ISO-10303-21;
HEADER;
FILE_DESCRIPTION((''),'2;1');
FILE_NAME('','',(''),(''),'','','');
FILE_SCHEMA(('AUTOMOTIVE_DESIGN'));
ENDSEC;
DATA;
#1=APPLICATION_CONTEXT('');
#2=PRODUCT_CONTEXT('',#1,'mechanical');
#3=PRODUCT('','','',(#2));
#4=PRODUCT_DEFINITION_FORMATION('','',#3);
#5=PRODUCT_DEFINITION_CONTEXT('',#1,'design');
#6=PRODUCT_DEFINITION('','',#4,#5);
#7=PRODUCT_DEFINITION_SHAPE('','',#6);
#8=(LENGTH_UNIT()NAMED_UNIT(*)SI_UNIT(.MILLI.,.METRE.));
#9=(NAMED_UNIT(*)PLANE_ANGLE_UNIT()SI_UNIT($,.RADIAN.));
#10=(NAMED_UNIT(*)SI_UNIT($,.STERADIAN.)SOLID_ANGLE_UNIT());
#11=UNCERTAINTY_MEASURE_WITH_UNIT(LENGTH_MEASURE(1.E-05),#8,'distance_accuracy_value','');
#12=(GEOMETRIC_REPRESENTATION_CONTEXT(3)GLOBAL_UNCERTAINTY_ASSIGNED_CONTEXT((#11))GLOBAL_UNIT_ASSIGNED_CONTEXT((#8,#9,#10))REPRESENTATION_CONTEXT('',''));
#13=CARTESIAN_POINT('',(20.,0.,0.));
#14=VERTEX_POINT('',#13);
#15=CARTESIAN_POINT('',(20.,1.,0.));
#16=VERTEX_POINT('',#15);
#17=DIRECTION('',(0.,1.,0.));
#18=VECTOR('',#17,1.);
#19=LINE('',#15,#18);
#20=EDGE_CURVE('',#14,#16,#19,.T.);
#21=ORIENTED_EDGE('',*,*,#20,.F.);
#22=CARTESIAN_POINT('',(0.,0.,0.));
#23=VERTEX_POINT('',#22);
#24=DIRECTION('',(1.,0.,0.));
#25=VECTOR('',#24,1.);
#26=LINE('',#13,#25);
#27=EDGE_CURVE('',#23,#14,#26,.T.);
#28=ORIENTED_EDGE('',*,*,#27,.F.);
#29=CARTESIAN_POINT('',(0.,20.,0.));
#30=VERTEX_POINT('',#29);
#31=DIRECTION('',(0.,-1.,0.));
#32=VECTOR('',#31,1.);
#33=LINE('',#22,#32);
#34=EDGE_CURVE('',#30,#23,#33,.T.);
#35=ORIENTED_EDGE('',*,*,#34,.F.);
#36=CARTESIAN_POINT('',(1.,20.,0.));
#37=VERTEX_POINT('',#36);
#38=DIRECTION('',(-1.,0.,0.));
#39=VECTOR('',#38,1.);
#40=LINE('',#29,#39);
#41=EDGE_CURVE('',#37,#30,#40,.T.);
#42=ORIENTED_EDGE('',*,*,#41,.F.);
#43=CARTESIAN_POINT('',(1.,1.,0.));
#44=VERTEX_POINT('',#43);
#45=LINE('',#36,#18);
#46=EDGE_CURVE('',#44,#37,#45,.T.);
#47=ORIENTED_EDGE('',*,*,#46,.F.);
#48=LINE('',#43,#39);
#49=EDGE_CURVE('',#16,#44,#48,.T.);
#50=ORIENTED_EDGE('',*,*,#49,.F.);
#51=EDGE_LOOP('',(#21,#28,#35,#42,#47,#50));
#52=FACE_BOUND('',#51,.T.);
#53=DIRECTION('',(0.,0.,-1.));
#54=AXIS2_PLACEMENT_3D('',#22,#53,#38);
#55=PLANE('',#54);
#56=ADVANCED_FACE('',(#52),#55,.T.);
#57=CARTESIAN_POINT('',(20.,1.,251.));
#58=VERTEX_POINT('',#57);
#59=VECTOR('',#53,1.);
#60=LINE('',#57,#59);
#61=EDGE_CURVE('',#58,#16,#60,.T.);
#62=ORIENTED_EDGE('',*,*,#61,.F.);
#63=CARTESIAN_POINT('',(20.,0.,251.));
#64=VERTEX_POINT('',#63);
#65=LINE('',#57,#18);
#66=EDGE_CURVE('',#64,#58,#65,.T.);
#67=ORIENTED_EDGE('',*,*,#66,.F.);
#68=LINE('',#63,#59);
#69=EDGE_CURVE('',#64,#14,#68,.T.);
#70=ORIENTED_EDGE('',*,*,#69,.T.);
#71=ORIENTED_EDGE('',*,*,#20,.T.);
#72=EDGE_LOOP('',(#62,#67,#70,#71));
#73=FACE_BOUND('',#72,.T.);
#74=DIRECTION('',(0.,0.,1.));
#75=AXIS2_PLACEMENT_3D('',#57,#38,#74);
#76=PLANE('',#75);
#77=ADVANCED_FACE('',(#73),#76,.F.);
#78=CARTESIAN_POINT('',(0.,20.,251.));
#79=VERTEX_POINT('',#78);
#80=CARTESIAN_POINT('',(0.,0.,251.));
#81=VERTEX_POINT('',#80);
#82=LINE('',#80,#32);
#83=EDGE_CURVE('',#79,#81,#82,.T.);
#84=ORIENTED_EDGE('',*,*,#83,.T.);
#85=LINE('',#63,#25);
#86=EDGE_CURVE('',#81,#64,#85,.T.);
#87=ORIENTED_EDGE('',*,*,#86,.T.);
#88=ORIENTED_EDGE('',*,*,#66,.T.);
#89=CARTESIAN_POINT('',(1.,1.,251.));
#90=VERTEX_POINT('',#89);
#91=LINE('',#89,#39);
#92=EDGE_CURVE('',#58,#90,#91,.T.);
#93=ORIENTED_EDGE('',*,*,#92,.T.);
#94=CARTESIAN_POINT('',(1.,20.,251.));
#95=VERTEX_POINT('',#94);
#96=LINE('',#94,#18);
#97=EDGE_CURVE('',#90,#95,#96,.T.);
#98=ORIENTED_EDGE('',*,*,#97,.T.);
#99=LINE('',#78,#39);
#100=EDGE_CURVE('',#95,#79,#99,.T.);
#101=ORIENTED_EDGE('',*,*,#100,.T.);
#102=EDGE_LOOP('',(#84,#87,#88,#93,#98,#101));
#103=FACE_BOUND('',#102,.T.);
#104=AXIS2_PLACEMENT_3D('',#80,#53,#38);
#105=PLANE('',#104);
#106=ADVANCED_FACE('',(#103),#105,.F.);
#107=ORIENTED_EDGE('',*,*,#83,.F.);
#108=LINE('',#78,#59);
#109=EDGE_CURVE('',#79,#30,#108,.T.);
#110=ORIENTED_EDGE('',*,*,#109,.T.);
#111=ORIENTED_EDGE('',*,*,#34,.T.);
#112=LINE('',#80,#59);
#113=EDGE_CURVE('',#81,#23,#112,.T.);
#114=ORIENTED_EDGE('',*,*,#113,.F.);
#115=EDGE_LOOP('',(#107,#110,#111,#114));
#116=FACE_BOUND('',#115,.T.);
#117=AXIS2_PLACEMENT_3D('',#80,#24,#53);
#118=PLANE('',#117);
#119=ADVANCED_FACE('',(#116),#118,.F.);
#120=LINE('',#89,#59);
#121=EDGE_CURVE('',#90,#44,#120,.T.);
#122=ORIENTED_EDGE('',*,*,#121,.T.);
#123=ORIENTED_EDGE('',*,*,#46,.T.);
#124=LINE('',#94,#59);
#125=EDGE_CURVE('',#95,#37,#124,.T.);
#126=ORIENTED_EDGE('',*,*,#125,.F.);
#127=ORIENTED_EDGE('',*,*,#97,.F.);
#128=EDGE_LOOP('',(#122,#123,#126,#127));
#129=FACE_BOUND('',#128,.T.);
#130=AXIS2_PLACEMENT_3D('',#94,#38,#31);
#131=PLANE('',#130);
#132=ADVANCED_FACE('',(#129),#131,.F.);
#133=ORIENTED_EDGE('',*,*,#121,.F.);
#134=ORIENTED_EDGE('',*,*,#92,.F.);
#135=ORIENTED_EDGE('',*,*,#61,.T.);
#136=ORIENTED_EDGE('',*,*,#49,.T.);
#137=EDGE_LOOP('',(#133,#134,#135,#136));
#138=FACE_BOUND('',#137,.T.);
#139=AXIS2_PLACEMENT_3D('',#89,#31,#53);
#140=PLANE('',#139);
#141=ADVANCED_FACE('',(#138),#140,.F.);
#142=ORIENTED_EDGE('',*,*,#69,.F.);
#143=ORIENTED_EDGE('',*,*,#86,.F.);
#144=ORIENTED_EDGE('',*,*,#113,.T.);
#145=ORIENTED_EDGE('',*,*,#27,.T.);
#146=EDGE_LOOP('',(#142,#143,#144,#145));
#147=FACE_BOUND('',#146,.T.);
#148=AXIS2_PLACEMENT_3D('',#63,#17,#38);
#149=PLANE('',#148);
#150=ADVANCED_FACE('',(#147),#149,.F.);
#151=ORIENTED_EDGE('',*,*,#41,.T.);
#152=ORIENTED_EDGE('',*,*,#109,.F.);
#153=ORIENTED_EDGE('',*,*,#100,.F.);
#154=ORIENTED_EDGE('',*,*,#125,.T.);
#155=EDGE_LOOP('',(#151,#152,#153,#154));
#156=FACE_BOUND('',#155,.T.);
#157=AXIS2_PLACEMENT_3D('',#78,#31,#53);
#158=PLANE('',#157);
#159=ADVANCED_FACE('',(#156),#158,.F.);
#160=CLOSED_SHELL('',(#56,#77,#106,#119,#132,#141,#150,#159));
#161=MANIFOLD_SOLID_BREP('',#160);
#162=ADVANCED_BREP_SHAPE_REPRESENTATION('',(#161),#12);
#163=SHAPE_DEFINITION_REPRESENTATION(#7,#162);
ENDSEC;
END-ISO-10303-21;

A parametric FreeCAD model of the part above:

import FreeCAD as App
import Part
import Sketcher
from FreeCAD import Vector


def add_polygon(sketch, points):
    """Adds a closed chain of lines whose ends are joined by coincident constraints."""
    first, n = sketch.GeometryCount, len(points)
    for a, b in zip(points, points[1:] + points[:1]):
        sketch.addGeometry(Part.LineSegment(App.Vector(*a, 0), App.Vector(*b, 0)), False)
    for i in range(n):
        sketch.addConstraint(Sketcher.Constraint("Coincident", first + i, 2, first + (i + 1) % n, 1))

doc = App.newDocument("Part")
params = doc.addObject("Spreadsheet::Sheet", "Params")
for row, (alias, value) in enumerate([
    ("sketch1_width", "20 mm"),
    ("sketch1_width2", "19 mm"),
    ("pad1_length", "251 mm"),
], start=1):
    params.set(f"A{row}", alias)
    params.set(f"B{row}", "=" + value)
    params.setAlias(f"B{row}", alias)

body = doc.addObject("PartDesign::Body", "Body")

sketch1 = body.newObject("Sketcher::SketchObject", "Sketch")
sketch1.AttachmentSupport = (doc.getObject("XY_Plane"), [""])
sketch1.MapMode = "FlatFace"
add_polygon(sketch1, [(0, 20), (0, 0), (20, 0), (20, 1), (1, 1), (1, 20)])
sketch1.addConstraint([
    Sketcher.Constraint("Vertical", 0),
    Sketcher.Constraint("Horizontal", 1),
    Sketcher.Constraint("Vertical", 2),
    Sketcher.Constraint("Horizontal", 3),
    Sketcher.Constraint("Vertical", 4),
    Sketcher.Constraint("Horizontal", 5),
    Sketcher.Constraint("Coincident", 0, 2, -1, 1),
    Sketcher.Constraint("Equal", 1, 0),
    Sketcher.Constraint("Equal", 5, 2),
    Sketcher.Constraint("DistanceX", 1, 1, 1, 2, 20.0),
    Sketcher.Constraint("DistanceX", 3, 2, 3, 1, 19.0),
])
sketch1.setExpression("Constraints[15]", "Params.sketch1_width")
sketch1.setExpression("Constraints[16]", "Params.sketch1_width2")
pad1 = body.newObject("PartDesign::Pad", "Pad")
pad1.Profile = sketch1
pad1.setExpression("Length", "Params.pad1_length")

doc.recompute()
